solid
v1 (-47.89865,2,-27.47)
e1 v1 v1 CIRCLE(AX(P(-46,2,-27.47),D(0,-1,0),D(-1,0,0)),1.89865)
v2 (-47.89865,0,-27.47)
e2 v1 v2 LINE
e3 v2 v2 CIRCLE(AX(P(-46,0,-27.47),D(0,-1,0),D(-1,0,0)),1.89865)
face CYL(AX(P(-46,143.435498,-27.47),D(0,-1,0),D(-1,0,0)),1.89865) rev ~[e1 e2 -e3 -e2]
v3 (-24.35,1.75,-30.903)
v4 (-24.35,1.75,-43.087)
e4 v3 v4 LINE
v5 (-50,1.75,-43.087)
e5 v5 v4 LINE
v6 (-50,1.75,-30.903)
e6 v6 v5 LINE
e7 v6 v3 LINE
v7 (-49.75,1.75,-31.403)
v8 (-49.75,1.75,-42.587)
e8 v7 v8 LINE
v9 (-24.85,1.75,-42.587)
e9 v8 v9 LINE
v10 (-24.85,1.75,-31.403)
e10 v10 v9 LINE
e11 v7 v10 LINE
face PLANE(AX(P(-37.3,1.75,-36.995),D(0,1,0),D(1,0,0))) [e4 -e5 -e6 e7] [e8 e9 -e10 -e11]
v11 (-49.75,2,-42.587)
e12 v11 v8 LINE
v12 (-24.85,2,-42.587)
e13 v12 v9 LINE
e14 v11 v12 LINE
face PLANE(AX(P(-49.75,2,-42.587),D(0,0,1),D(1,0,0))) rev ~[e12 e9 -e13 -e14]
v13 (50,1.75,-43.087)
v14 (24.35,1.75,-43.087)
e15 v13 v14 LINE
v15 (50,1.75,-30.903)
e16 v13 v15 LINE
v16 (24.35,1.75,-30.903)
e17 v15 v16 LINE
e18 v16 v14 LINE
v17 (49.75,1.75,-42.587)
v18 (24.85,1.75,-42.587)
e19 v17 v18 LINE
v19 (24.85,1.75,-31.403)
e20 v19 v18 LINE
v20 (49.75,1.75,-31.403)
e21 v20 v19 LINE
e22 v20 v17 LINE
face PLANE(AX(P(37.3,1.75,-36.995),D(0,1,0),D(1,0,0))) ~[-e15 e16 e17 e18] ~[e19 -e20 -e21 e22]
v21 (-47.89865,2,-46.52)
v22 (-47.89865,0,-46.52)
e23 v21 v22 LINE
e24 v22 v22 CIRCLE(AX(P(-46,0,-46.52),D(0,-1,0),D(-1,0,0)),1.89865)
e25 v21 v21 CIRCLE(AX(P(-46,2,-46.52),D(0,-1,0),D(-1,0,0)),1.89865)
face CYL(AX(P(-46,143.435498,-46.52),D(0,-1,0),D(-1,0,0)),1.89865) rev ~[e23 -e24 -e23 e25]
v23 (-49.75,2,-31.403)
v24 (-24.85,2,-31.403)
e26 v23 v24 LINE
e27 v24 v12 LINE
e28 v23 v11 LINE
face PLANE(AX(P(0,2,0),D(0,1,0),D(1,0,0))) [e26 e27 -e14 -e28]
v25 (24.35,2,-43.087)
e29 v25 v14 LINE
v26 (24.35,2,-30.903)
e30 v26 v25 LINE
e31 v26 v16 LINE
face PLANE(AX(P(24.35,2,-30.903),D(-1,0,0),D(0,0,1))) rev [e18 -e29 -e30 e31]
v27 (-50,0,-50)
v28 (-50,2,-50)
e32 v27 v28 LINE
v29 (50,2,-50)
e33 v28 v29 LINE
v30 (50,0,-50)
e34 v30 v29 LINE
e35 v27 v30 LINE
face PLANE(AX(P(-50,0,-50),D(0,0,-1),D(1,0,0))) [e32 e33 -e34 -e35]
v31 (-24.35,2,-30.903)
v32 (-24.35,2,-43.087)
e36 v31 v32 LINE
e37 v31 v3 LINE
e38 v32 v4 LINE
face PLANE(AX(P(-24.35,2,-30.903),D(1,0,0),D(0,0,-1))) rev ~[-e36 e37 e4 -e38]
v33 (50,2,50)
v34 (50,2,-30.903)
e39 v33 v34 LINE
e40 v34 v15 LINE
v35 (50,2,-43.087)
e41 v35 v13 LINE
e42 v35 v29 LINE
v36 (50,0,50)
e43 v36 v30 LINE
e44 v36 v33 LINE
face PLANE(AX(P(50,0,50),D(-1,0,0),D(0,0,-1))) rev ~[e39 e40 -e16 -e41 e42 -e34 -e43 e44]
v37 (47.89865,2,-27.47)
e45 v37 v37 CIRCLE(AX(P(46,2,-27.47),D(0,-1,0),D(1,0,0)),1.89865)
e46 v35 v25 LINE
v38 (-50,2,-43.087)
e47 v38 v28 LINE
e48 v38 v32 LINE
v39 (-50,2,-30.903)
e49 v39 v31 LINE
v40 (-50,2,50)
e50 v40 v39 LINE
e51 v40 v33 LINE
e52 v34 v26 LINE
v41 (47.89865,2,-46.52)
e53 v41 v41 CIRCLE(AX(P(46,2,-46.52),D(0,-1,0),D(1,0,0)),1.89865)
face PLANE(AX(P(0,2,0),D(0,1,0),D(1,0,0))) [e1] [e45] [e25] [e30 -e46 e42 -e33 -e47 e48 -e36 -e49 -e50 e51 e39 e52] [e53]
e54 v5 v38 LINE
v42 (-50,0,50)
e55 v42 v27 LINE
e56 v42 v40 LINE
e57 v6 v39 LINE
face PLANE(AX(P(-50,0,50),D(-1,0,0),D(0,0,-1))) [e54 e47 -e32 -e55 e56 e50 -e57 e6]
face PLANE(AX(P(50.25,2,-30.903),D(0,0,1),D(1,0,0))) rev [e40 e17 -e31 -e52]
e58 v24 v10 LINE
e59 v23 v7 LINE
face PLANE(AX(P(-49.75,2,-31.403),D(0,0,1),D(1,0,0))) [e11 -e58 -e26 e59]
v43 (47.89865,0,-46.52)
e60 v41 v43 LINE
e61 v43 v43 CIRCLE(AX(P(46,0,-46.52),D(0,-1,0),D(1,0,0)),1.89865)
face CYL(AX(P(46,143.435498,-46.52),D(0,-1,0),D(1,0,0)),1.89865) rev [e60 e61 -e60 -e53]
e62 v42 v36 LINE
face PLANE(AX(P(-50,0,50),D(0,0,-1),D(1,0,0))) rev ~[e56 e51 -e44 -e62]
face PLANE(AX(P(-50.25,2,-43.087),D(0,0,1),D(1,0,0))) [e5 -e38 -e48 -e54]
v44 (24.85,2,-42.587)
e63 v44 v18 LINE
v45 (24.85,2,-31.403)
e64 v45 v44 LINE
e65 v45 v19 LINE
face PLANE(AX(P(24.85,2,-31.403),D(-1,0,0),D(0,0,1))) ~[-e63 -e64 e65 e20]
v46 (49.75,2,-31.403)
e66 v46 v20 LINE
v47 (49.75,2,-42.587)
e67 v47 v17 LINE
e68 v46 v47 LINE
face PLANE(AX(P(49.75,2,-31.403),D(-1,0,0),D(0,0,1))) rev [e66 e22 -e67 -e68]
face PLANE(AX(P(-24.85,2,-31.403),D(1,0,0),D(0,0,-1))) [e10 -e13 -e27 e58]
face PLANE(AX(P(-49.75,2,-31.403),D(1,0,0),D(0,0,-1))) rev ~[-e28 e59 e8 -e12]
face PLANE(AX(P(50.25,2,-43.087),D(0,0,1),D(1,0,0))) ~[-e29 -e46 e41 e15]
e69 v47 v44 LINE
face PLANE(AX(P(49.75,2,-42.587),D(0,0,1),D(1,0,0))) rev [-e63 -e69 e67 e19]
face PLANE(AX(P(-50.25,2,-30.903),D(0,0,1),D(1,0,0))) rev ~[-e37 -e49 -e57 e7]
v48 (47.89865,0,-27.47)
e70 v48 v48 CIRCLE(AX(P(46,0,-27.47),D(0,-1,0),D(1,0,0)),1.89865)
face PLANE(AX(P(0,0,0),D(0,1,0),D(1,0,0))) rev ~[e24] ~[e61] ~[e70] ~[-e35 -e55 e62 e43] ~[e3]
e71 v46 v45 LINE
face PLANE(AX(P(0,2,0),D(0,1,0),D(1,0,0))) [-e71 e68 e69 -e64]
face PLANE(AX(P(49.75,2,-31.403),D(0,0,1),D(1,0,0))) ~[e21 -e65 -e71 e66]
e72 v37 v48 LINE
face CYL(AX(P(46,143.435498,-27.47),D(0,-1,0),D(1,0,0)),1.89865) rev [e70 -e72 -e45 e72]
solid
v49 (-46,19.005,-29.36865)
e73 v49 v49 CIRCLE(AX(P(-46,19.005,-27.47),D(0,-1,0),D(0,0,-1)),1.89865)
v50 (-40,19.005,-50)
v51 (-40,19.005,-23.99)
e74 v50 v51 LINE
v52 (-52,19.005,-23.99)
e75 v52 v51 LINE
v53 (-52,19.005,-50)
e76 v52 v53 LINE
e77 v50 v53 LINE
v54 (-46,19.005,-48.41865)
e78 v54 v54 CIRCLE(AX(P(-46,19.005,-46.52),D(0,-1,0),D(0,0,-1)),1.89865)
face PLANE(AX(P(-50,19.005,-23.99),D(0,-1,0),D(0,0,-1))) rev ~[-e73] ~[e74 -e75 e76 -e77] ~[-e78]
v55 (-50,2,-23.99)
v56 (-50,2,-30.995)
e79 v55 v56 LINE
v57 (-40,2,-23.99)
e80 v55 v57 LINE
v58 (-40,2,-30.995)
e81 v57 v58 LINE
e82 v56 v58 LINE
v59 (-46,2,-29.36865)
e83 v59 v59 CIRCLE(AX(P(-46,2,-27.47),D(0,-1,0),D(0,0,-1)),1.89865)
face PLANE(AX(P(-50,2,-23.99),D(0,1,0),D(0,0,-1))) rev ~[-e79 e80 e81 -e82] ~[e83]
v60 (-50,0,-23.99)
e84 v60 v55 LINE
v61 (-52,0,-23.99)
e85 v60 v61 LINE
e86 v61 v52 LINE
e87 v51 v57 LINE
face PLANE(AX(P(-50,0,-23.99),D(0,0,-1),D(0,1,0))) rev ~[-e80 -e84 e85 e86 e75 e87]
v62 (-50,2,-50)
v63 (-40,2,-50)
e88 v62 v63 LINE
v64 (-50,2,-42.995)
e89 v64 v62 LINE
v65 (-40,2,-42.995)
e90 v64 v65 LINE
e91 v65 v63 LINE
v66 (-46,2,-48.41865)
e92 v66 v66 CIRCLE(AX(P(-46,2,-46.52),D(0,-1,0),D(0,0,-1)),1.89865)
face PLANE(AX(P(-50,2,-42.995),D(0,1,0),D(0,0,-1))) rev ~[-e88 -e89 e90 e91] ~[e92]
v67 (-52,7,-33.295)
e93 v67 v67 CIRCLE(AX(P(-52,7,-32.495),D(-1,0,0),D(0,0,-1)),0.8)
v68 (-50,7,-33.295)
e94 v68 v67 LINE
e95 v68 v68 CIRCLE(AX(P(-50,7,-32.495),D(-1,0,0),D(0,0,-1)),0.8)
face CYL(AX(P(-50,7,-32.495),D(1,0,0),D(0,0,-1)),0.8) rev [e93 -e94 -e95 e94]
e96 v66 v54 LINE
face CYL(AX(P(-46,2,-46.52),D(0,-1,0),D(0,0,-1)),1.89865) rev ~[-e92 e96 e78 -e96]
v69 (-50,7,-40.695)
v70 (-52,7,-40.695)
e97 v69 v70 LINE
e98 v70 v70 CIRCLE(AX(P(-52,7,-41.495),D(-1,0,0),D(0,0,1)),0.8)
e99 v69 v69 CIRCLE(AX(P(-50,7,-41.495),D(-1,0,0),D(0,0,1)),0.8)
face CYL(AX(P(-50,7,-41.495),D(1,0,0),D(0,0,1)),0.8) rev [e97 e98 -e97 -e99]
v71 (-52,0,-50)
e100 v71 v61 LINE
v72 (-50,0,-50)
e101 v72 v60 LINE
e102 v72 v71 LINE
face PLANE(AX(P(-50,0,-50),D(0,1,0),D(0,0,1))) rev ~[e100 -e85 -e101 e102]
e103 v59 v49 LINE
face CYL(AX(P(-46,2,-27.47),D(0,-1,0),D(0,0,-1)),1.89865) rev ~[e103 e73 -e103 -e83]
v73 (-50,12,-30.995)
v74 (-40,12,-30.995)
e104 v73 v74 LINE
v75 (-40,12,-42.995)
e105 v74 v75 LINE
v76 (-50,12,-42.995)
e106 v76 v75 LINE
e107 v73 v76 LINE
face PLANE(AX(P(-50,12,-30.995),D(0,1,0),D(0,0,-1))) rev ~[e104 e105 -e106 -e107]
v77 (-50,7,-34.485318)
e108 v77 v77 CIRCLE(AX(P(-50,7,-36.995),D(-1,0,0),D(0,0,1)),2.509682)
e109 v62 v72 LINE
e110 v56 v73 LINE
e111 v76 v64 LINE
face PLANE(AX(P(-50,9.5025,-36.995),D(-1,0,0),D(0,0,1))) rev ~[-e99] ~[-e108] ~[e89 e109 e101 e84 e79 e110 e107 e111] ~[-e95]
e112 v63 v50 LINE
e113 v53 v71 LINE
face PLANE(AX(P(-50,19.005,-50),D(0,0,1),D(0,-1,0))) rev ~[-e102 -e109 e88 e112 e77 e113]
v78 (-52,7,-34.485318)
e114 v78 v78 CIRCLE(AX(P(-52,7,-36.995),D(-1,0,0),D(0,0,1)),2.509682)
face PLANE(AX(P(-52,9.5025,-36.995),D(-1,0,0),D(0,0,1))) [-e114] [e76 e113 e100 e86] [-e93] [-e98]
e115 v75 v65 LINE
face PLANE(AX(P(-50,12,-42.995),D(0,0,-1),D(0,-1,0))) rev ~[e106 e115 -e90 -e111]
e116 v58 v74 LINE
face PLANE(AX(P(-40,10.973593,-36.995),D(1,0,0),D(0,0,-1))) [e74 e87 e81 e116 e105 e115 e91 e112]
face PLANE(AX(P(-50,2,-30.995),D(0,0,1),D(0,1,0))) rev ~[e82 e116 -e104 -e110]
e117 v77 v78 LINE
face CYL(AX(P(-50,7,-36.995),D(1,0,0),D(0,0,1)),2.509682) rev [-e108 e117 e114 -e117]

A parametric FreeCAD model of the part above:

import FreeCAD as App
import Part
import Sketcher
from FreeCAD import Vector

doc = App.newDocument("Part")
body = doc.addObject("PartDesign::Body", "Body")

# Sketch on XZ plane
sketch1 = body.newObject("Sketcher::SketchObject", "Sketch")
sketch1.AttachmentSupport = (doc.getObject("XZ_Plane"), [""])
sketch1.MapMode = "FlatFace"
sketch1.addGeometry(Part.LineSegment(Vector(-50, -50, 0), Vector(-50, 50, 0)), False)
sketch1.addGeometry(Part.LineSegment(Vector(-50, 50, 0), Vector(50, 50, 0)), False)
sketch1.addGeometry(Part.LineSegment(Vector(50, 50, 0), Vector(50, -50, 0)), False)
sketch1.addGeometry(Part.LineSegment(Vector(50, -50, 0), Vector(-50, -50, 0)), False)
sketch1.addConstraint(Sketcher.Constraint("Coincident", 0, 2, 1, 1))
sketch1.addConstraint(Sketcher.Constraint("Coincident", 1, 2, 2, 1))
sketch1.addConstraint(Sketcher.Constraint("Coincident", 2, 2, 3, 1))
sketch1.addConstraint(Sketcher.Constraint("Coincident", 3, 2, 0, 1))
sketch1.addConstraint(Sketcher.Constraint("Vertical", 0))
sketch1.addConstraint(Sketcher.Constraint("Horizontal", 1))
sketch1.addConstraint(Sketcher.Constraint("Vertical", 2))
sketch1.addConstraint(Sketcher.Constraint("Horizontal", 3))
sketch1.addConstraint(Sketcher.Constraint("Symmetric", 0, 2, 2, 2, -1, 1))
sketch1.addConstraint(Sketcher.Constraint("Equal", 3, 0))
sketch1.addConstraint(Sketcher.Constraint("DistanceX", 1, 1, 1, 2, 100.0))
pad1 = body.newObject("PartDesign::Pad", "Pad")
pad1.Profile = sketch1
pad1.Length = 2
pad1.Reversed = True

# Sketch on XZ plane
sketch2 = body.newObject("Sketcher::SketchObject", "Sketch001")
sketch2.AttachmentSupport = (doc.getObject("XZ_Plane"), [""])
sketch2.MapMode = "FlatFace"
sketch2.AttachmentOffset = App.Placement(Vector(0, 0, -2), App.Rotation())
sketch2.addGeometry(Part.Circle(Vector(-46, -27.5, 0), Vector(0, 0, 1), 1.9), False)
sketch2.addGeometry(Part.Circle(Vector(-46, -46.5, 0), Vector(0, 0, 1), 1.9), False)
sketch2.addConstraint(Sketcher.Constraint("Equal", 0, 1))
sketch2.addConstraint(Sketcher.Constraint("Vertical", 0, 3, 1, 3))
sketch2.addConstraint(Sketcher.Constraint("DistanceX", 0, 3, -1, 1, 46.0))
sketch2.addConstraint(Sketcher.Constraint("Diameter", 0, 3.7973))
sketch2.addConstraint(Sketcher.Constraint("DistanceY", 0, 3, -1, 1, 27.47))
sketch2.addConstraint(Sketcher.Constraint("DistanceY", 1, 3, -1, 1, 46.52))
doc.recompute()
hole = body.newObject("PartDesign::Hole", "Hole")
hole.Profile = sketch2
hole.ThreadType = "None"
hole.Diameter = 3.7973
hole.DepthType = "ThroughAll"
hole.Reversed = True

# Sketch on XZ plane
sketch3 = body.newObject("Sketcher::SketchObject", "Sketch002")
sketch3.AttachmentSupport = (doc.getObject("XZ_Plane"), [""])
sketch3.MapMode = "FlatFace"
sketch3.AttachmentOffset = App.Placement(Vector(0, 0, -2), App.Rotation())
sketch3.addGeometry(Part.LineSegment(Vector(-50, -43, 0), Vector(-50, -31, 0)), False)
sketch3.addGeometry(Part.LineSegment(Vector(-50, -31, 0), Vector(-24, -31, 0)), False)
sketch3.addGeometry(Part.LineSegment(Vector(-24, -31, 0), Vector(-24, -43, 0)), False)
sketch3.addGeometry(Part.LineSegment(Vector(-24, -43, 0), Vector(-50, -43, 0)), False)
sketch3.addGeometry(Part.LineSegment(Vector(-25, -31, 0), Vector(-50, -31, 0)), False)
sketch3.addGeometry(Part.LineSegment(Vector(-50, -31, 0), Vector(-50, -43, 0)), False)
sketch3.addGeometry(Part.LineSegment(Vector(-50, -43, 0), Vector(-25, -43, 0)), False)
sketch3.addGeometry(Part.LineSegment(Vector(-25, -43, 0), Vector(-25, -31, 0)), False)
sketch3.addConstraint(Sketcher.Constraint("Coincident", 0, 2, 1, 1))
sketch3.addConstraint(Sketcher.Constraint("Coincident", 1, 2, 2, 1))
sketch3.addConstraint(Sketcher.Constraint("Coincident", 2, 2, 3, 1))
sketch3.addConstraint(Sketcher.Constraint("Coincident", 3, 2, 0, 1))
sketch3.addConstraint(Sketcher.Constraint("Coincident", 4, 2, 5, 1))
sketch3.addConstraint(Sketcher.Constraint("Coincident", 5, 2, 6, 1))
sketch3.addConstraint(Sketcher.Constraint("Coincident", 6, 2, 7, 1))
sketch3.addConstraint(Sketcher.Constraint("Coincident", 7, 2, 4, 1))
sketch3.addConstraint(Sketcher.Constraint("Vertical", 0))
sketch3.addConstraint(Sketcher.Constraint("Horizontal", 1))
sketch3.addConstraint(Sketcher.Constraint("Vertical", 2))
sketch3.addConstraint(Sketcher.Constraint("Horizontal", 3))
sketch3.addConstraint(Sketcher.Constraint("Horizontal", 4))
sketch3.addConstraint(Sketcher.Constraint("Vertical", 5))
sketch3.addConstraint(Sketcher.Constraint("Horizontal", 6))
sketch3.addConstraint(Sketcher.Constraint("Vertical", 7))
sketch3.addConstraint(Sketcher.Constraint("DistanceX", 1, 1, 1, 2, 25.9))
sketch3.addConstraint(Sketcher.Constraint("DistanceX", 4, 2, 4, 1, 24.9))
sketch3.addConstraint(Sketcher.Constraint("DistanceX", 0, 2, 4, 2, 0.5))
sketch3.addConstraint(Sketcher.Constraint("DistanceY", 4, 2, 0, 2, 0.5))
sketch3.addConstraint(Sketcher.Constraint("DistanceY", 3, 2, 5, 2, 0.5))
sketch3.addConstraint(Sketcher.Constraint("DistanceY", 0, 1, 0, 2, 12.184))
sketch3.addConstraint(Sketcher.Constraint("DistanceX", 0, 2, -1, 1, 50.25))
sketch3.addConstraint(Sketcher.Constraint("DistanceY", 0, 2, -1, 1, 30.903))
pocket1 = body.newObject("PartDesign::Pocket", "Pocket")
pocket1.Profile = sketch3
pocket1.Length = 0.25
pocket1.Reversed = True
doc.recompute()

mirrored = body.newObject("PartDesign::Mirrored", "Mirrored")
mirrored.Originals = [hole, pocket1]
mirrored.MirrorPlane = (doc.getObject("YZ_Plane"), [""])
body.Tip = mirrored
body2 = doc.addObject("PartDesign::Body", "Body001")

# Sketch on YZ plane
sketch4 = body2.newObject("Sketcher::SketchObject", "Sketch003")
sketch4.AttachmentSupport = (doc.getObject("YZ_Plane001"), [""])
sketch4.MapMode = "FlatFace"
sketch4.AttachmentOffset = App.Placement(Vector(0, 0, -50), App.Rotation())
sketch4.addGeometry(Part.LineSegment(Vector(12, -43, 0), Vector(12, -31, 0)), False)
sketch4.addGeometry(Part.LineSegment(Vector(12, -31, 0), Vector(2, -31, 0)), False)
sketch4.addGeometry(Part.LineSegment(Vector(2, -31, 0), Vector(2, -24, 0)), False)
sketch4.addGeometry(Part.LineSegment(Vector(2, -24, 0), Vector(19, -24, 0)), False)
sketch4.addGeometry(Part.LineSegment(Vector(19, -24, 0), Vector(19, -50, 0)), False)
sketch4.addGeometry(Part.LineSegment(Vector(19, -50, 0), Vector(2, -50, 0)), False)
sketch4.addGeometry(Part.LineSegment(Vector(2, -50, 0), Vector(2, -43, 0)), False)
sketch4.addGeometry(Part.LineSegment(Vector(2, -43, 0), Vector(12, -43, 0)), False)
sketch4.addConstraint(Sketcher.Constraint("Coincident", 0, 2, 1, 1))
sketch4.addConstraint(Sketcher.Constraint("Coincident", 1, 2, 2, 1))
sketch4.addConstraint(Sketcher.Constraint("Coincident", 2, 2, 3, 1))
sketch4.addConstraint(Sketcher.Constraint("Coincident", 3, 2, 4, 1))
sketch4.addConstraint(Sketcher.Constraint("Coincident", 4, 2, 5, 1))
sketch4.addConstraint(Sketcher.Constraint("Coincident", 5, 2, 6, 1))
sketch4.addConstraint(Sketcher.Constraint("Coincident", 6, 2, 7, 1))
sketch4.addConstraint(Sketcher.Constraint("Coincident", 7, 2, 0, 1))
sketch4.addConstraint(Sketcher.Constraint("Vertical", 0))
sketch4.addConstraint(Sketcher.Constraint("Horizontal", 1))
sketch4.addConstraint(Sketcher.Constraint("Vertical", 2))
sketch4.addConstraint(Sketcher.Constraint("Horizontal", 3))
sketch4.addConstraint(Sketcher.Constraint("Vertical", 4))
sketch4.addConstraint(Sketcher.Constraint("Horizontal", 5))
sketch4.addConstraint(Sketcher.Constraint("Vertical", 6))
sketch4.addConstraint(Sketcher.Constraint("Horizontal", 7))
sketch4.addConstraint(Sketcher.Constraint("Vertical", 2, 2, 5, 2))
sketch4.addConstraint(Sketcher.Constraint("Equal", 2, 6))
sketch4.addConstraint(Sketcher.Constraint("DistanceX", 1, 2, 1, 1, 10.0))
sketch4.addConstraint(Sketcher.Constraint("DistanceY", 0, 1, 0, 2, 12.0))
sketch4.addConstraint(Sketcher.Constraint("DistanceX", -1, 1, 0, 2, 12.0))
sketch4.addConstraint(Sketcher.Constraint("DistanceY", 4, 2, -1, 1, 50.0))
sketch4.addConstraint(Sketcher.Constraint("DistanceY", 4, 2, 4, 1, 26.01))
sketch4.addConstraint(Sketcher.Constraint("DistanceX", 3, 1, 3, 2, 17.005))
pad2 = body2.newObject("PartDesign::Pad", "Pad001")
pad2.Profile = sketch4
pad2.Length = 10

# Sketch on XZ plane
sketch5 = body2.newObject("Sketcher::SketchObject", "Sketch004")
sketch5.AttachmentSupport = (doc.getObject("XZ_Plane001"), [""])
sketch5.MapMode = "FlatFace"
sketch5.AttachmentOffset = App.Placement(Vector(0, 0, -2), App.Rotation())
sketch5.addGeometry(Part.Circle(Vector(-46, -27.5, 0), Vector(0, 0, 1), 1.9), False)
sketch5.addGeometry(Part.Circle(Vector(-46, -46.5, 0), Vector(0, 0, 1), 1.9), False)
sketch5.addConstraint(Sketcher.Constraint("Equal", 0, 1))
sketch5.addConstraint(Sketcher.Constraint("Vertical", 0, 3, 1, 3))
sketch5.addConstraint(Sketcher.Constraint("DistanceX", 0, 3, -1, 1, 46.0))
sketch5.addConstraint(Sketcher.Constraint("Diameter", 0, 3.7973))
sketch5.addConstraint(Sketcher.Constraint("DistanceY", 0, 3, -1, 1, 27.47))
sketch5.addConstraint(Sketcher.Constraint("DistanceY", 1, 3, -1, 1, 46.52))
pocket2 = body2.newObject("PartDesign::Pocket", "Pocket001")
pocket2.Profile = sketch5
pocket2.Type = "ThroughAll"

# Sketch on YZ plane
sketch6 = body2.newObject("Sketcher::SketchObject", "Sketch005")
sketch6.AttachmentSupport = (doc.getObject("YZ_Plane001"), [""])
sketch6.MapMode = "FlatFace"
sketch6.AttachmentOffset = App.Placement(Vector(0, 0, -50), App.Rotation())
sketch6.addGeometry(Part.LineSegment(Vector(19, -24, 0), Vector(19, -50, 0)), False)
sketch6.addGeometry(Part.LineSegment(Vector(19, -50, 0), Vector(0, -50, 0)), False)
sketch6.addGeometry(Part.LineSegment(Vector(0, -50, 0), Vector(0, -24, 0)), False)
sketch6.addGeometry(Part.LineSegment(Vector(0, -24, 0), Vector(19, -24, 0)), False)
sketch6.addGeometry(Part.Circle(Vector(7, -41.5, 0), Vector(0, 0, 1), 0.8), False)
sketch6.addGeometry(Part.Circle(Vector(7, -37, 0), Vector(0, 0, 1), 2.5), False)
sketch6.addGeometry(Part.Circle(Vector(7, -32.5, 0), Vector(0, 0, 1), 0.8), False)
sketch6.addConstraint(Sketcher.Constraint("Coincident", 0, 2, 1, 1))
sketch6.addConstraint(Sketcher.Constraint("Coincident", 1, 2, 2, 1))
sketch6.addConstraint(Sketcher.Constraint("Coincident", 2, 2, 3, 1))
sketch6.addConstraint(Sketcher.Constraint("Coincident", 3, 2, 0, 1))
sketch6.addConstraint(Sketcher.Constraint("Vertical", 0))
sketch6.addConstraint(Sketcher.Constraint("Horizontal", 1))
sketch6.addConstraint(Sketcher.Constraint("Vertical", 2))
sketch6.addConstraint(Sketcher.Constraint("Horizontal", 3))
sketch6.addConstraint(Sketcher.Constraint("Equal", 4, 6))
sketch6.addConstraint(Sketcher.Constraint("PointOnObject", 1, 2, -2))
sketch6.addConstraint(Sketcher.Constraint("Vertical", 4, 3, 5, 3))
sketch6.addConstraint(Sketcher.Constraint("Vertical", 5, 3, 6, 3))
sketch6.addConstraint(Sketcher.Constraint("Diameter", 4, 1.6))
sketch6.addConstraint(Sketcher.Constraint("DistanceX", -1, 1, 4, 3, 7.0))
sketch6.addConstraint(Sketcher.Constraint("DistanceY", 0, 2, -1, 1, 50.0))
sketch6.addConstraint(Sketcher.Constraint("DistanceY", 4, 3, 6, 3, 9.0))
sketch6.addConstraint(Sketcher.Constraint("DistanceY", 0, 2, 0, 1, 26.01))
sketch6.addConstraint(Sketcher.Constraint("DistanceY", 4, 3, 5, 3, 4.5))
sketch6.addConstraint(Sketcher.Constraint("DistanceX", 1, 2, 1, 1, 19.005))
sketch6.addConstraint(Sketcher.Constraint("Diameter", 5, 5.019363))
sketch6.addConstraint(Sketcher.Constraint("DistanceY", 4, 3, -1, 1, 41.495))
pad3 = body2.newObject("PartDesign::Pad", "Pad002")
pad3.Profile = sketch6
pad3.Length = 2
pad3.Reversed = True

doc.recompute()
